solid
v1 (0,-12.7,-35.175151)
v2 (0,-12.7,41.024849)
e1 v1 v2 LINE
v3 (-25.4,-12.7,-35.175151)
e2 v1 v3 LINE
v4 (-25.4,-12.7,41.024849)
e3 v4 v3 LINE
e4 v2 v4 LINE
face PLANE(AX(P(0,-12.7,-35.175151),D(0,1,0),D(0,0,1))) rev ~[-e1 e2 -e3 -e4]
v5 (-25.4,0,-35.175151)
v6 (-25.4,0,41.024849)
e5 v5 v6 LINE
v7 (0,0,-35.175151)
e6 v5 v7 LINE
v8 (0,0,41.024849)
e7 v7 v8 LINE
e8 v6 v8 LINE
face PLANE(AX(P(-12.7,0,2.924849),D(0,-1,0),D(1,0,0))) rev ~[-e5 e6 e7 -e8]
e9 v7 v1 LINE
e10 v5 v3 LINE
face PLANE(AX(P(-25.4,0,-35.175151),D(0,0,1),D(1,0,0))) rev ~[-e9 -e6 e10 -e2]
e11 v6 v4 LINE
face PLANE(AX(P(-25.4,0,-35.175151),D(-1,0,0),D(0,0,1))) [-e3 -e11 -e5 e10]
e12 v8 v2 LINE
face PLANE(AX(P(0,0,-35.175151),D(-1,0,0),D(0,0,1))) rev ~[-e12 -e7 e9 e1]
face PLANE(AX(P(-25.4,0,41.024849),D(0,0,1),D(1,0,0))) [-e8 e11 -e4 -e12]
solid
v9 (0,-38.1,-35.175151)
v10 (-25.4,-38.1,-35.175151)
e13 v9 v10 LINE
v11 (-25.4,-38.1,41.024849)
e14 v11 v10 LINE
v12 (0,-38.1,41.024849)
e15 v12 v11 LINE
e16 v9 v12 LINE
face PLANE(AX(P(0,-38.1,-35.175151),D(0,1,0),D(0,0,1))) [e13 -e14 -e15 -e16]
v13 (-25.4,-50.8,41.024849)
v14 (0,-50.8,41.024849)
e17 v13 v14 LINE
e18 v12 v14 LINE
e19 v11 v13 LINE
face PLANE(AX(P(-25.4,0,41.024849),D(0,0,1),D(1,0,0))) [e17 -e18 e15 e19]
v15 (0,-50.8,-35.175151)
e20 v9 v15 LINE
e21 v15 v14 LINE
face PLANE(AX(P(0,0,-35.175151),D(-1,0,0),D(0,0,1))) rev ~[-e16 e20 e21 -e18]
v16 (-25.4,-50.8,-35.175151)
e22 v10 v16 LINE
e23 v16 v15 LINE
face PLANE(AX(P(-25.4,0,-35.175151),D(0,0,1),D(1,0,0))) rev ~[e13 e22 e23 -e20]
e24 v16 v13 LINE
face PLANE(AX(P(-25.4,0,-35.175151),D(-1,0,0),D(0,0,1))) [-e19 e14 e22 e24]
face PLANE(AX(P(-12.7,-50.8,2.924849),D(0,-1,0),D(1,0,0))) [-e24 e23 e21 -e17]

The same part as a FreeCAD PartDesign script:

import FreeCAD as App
import Part
import Sketcher

V = App.Vector
Q = App.Units.Quantity


def add_polygon(sketch, points):
    """Adds a closed chain of lines whose ends are joined by coincident constraints."""
    first, n = sketch.GeometryCount, len(points)
    for a, b in zip(points, points[1:] + points[:1]):
        sketch.addGeometry(Part.LineSegment(App.Vector(*a, 0), App.Vector(*b, 0)), False)
    for i in range(n):
        sketch.addConstraint(Sketcher.Constraint("Coincident", first + i, 2, first + (i + 1) % n, 1))

doc = App.newDocument("Part")
body = doc.addObject("PartDesign::Body", "Body")
body.AllowCompound = True

# Sketch on XZ plane
sketch1 = body.newObject("Sketcher::SketchObject", "Sketch")
sketch1.AttachmentSupport = (doc.getObject("XZ_Plane"), [""])
sketch1.MapMode = "FlatFace"
add_polygon(sketch1, [(-25, 41), (-25, -35), (0, -35), (0, 41)])  # lines 0-3
sketch1.addConstraint(Sketcher.Constraint("Vertical", 0))
sketch1.addConstraint(Sketcher.Constraint("Horizontal", 1))
sketch1.addConstraint(Sketcher.Constraint("Vertical", 2))
sketch1.addConstraint(Sketcher.Constraint("Horizontal", 3))
sketch1.addConstraint(Sketcher.Constraint("PointOnObject", 1, 2, -2))
sketch1.addConstraint(Sketcher.Constraint("DistanceX", 1, 1, 1, 2, Q("1 in")))
sketch1.addConstraint(Sketcher.Constraint("DistanceY", 0, 2, 0, 1, Q("3 in")))
sketch1.addConstraint(Sketcher.Constraint("DistanceY", 0, 2, -1, 1, Q("35.175151 mm")))
pad1 = body.newObject("PartDesign::Pad", "Pad")
pad1.Profile = sketch1
pad1.Length = Q("2 in")

# Sketch on YZ plane
sketch2 = body.newObject("Sketcher::SketchObject", "Sketch001")
sketch2.AttachmentSupport = (doc.getObject("YZ_Plane"), [""])
sketch2.MapMode = "FlatFace"
add_polygon(sketch2, [(-38, 41), (-38, -35), (-13, -35), (-13, 41)])  # lines 0-3
sketch2.addConstraint(Sketcher.Constraint("Vertical", 0))
sketch2.addConstraint(Sketcher.Constraint("Horizontal", 1))
sketch2.addConstraint(Sketcher.Constraint("Vertical", 2))
sketch2.addConstraint(Sketcher.Constraint("Horizontal", 3))
sketch2.addConstraint(Sketcher.Constraint("DistanceX", 1, 1, 1, 2, Q("1 in")))
sketch2.addConstraint(Sketcher.Constraint("DistanceY", 0, 2, 0, 1, Q("3 in")))
sketch2.addConstraint(Sketcher.Constraint("DistanceX", 0, 2, -1, 1, Q("1.5 in")))
sketch2.addConstraint(Sketcher.Constraint("DistanceY", 0, 2, -1, 1, Q("35.175151 mm")))
pocket1 = body.newObject("PartDesign::Pocket", "Pocket")
pocket1.Profile = sketch2
pocket1.Type = "ThroughAll"

doc.recompute()
